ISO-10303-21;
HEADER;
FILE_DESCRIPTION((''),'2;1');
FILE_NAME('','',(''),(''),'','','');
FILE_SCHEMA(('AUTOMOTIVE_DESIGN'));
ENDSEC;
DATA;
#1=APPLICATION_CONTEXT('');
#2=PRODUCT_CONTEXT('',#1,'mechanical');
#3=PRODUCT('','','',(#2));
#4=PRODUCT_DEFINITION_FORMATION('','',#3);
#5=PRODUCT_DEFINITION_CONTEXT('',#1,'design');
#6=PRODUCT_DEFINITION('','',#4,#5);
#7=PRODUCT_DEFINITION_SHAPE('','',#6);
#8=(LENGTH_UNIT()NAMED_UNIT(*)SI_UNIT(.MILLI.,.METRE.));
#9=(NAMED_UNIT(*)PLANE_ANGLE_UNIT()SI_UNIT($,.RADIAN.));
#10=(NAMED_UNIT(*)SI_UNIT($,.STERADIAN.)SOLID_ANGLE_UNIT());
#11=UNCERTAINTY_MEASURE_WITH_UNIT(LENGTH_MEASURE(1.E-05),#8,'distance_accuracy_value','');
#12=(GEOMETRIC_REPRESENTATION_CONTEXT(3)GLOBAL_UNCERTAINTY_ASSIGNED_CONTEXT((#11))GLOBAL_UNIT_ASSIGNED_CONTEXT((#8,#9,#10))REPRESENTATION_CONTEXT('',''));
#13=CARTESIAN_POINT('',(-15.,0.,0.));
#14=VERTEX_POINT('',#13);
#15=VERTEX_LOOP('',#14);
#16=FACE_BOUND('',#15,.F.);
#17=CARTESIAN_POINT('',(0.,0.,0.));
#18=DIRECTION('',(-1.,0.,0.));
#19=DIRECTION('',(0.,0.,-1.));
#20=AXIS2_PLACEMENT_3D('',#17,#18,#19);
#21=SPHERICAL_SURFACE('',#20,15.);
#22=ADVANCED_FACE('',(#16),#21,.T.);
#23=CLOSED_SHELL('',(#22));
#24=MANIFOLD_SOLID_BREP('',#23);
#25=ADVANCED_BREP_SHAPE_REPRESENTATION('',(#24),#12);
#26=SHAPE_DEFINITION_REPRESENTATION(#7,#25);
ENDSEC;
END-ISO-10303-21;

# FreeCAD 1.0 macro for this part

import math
import FreeCAD as App
import Part
import Sketcher
Q = App.Units.Quantity

doc = App.newDocument("Part")
body = doc.addObject("PartDesign::Body", "Body")

sketch1 = doc.addObject("Sketcher::SketchObject", "Sketch")
body.addObject(sketch1)
sketch1.AttachmentSupport = (doc.XZ_Plane, [""])
sketch1.MapMode = "FlatFace"
sketch1.addGeometry([
    Part.ArcOfCircle(Part.Circle(App.Vector(0, 0, 0), App.Vector(0, 0, 1), 15), math.radians(180), math.radians(360)),
    Part.LineSegment(App.Vector(-15, 0, 0), App.Vector(15, 0, 0)),
], False)
sketch1.addConstraint([
    Sketcher.Constraint("Coincident", 0, 1, 1, 1),
    Sketcher.Constraint("Coincident", 1, 2, 0, 2),
    Sketcher.Constraint("Horizontal", 1),
    Sketcher.Constraint("Coincident", 0, 3, -1, 1),
    Sketcher.Constraint("PointOnObject", 0, 1, -1),
    Sketcher.Constraint("Radius", 0, Q("15 mm")),
])
revolution = doc.addObject("PartDesign::Revolution", "Revolution")
body.addObject(revolution)
revolution.Profile = sketch1
revolution.ReferenceAxis = (sketch1, ["H_Axis"])
revolution.Angle = 360

doc.recompute()
